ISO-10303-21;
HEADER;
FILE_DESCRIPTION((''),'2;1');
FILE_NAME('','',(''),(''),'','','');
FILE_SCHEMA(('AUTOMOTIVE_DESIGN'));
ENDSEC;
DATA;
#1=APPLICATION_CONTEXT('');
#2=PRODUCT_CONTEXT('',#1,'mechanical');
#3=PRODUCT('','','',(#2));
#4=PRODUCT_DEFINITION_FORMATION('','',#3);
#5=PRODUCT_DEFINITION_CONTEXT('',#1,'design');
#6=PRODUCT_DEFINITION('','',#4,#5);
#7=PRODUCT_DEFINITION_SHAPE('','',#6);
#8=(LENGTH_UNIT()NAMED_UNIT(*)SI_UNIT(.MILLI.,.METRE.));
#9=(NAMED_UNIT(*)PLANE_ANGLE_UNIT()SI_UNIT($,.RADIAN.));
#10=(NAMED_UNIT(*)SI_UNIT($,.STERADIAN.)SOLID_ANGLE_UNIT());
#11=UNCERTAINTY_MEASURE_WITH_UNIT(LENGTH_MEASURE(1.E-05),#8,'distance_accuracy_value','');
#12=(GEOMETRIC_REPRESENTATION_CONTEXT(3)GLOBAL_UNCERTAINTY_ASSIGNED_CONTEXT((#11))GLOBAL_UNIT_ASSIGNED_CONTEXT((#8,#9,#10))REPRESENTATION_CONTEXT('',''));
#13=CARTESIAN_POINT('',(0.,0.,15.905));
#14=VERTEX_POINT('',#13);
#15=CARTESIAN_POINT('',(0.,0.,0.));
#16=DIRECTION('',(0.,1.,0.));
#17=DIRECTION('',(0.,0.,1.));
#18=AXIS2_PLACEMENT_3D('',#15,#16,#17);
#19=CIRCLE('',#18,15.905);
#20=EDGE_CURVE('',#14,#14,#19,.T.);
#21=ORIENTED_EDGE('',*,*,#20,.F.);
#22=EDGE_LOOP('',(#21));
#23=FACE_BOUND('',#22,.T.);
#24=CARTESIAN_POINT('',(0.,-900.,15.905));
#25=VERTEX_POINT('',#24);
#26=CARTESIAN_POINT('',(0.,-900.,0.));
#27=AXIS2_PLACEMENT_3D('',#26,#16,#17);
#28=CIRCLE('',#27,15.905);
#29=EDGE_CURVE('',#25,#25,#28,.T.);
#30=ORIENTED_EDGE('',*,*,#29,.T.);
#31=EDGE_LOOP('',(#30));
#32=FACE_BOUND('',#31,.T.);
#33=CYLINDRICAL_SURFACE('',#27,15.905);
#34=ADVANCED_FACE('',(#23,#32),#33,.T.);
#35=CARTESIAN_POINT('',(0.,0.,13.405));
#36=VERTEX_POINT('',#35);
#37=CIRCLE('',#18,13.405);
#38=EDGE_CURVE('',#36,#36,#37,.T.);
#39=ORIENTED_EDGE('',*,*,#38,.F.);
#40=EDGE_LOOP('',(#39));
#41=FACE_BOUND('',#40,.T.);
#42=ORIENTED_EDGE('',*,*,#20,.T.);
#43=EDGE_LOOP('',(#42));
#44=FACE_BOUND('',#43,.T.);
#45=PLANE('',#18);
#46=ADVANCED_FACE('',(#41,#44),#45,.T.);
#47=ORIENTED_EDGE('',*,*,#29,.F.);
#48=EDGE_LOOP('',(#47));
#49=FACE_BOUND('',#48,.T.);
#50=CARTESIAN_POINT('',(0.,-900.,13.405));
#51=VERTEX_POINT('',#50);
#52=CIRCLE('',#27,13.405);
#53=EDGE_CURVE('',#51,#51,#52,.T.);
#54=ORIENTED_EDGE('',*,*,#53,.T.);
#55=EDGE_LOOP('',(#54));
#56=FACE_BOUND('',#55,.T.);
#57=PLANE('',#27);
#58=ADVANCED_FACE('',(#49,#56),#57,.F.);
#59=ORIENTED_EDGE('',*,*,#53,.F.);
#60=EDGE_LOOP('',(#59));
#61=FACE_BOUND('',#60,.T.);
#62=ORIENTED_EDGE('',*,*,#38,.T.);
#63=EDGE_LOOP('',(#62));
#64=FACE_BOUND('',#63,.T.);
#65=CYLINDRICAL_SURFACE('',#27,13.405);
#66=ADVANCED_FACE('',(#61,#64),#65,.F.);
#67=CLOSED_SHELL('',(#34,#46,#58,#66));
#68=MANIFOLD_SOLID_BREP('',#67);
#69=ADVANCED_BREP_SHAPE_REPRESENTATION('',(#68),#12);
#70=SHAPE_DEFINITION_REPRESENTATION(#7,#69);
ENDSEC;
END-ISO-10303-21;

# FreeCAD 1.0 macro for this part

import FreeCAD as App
import Part
import Sketcher

doc = App.newDocument("Part")
params = doc.addObject("Spreadsheet::Sheet", "Params")
for row, (alias, value) in enumerate([
    ("sketch1_diameter", "31.81 mm"),
    ("sketch1_diameter2", "26.81 mm"),
    ("pad1_length", "900 mm"),
], start=1):
    params.set(f"A{row}", alias)
    params.set(f"B{row}", "=" + value)
    params.setAlias(f"B{row}", alias)

body = doc.addObject("PartDesign::Body", "Body")

# Sketch on XZ plane
sketch1 = doc.addObject("Sketcher::SketchObject", "Sketch")
body.addObject(sketch1)
sketch1.AttachmentSupport = (doc.XZ_Plane, [""])
sketch1.MapMode = "FlatFace"
sketch1.addGeometry([
    Part.Circle(App.Vector(0, 0, 0), App.Vector(0, 0, 1), 15.905),
    Part.Circle(App.Vector(0, 0, 0), App.Vector(0, 0, 1), 13.405),
], False)
sketch1.addConstraint([
    Sketcher.Constraint("Coincident", 0, 3, -1, 1),
    Sketcher.Constraint("Coincident", 1, 3, -1, 1),
    Sketcher.Constraint("Diameter", 0, 31.81),
    Sketcher.Constraint("Diameter", 1, 26.81),
])
sketch1.setExpression("Constraints[2]", "Params.sketch1_diameter")
sketch1.setExpression("Constraints[3]", "Params.sketch1_diameter2")
pad1 = doc.addObject("PartDesign::Pad", "Pad")
body.addObject(pad1)
pad1.Profile = sketch1
pad1.setExpression("Length", "Params.pad1_length")

doc.recompute()
